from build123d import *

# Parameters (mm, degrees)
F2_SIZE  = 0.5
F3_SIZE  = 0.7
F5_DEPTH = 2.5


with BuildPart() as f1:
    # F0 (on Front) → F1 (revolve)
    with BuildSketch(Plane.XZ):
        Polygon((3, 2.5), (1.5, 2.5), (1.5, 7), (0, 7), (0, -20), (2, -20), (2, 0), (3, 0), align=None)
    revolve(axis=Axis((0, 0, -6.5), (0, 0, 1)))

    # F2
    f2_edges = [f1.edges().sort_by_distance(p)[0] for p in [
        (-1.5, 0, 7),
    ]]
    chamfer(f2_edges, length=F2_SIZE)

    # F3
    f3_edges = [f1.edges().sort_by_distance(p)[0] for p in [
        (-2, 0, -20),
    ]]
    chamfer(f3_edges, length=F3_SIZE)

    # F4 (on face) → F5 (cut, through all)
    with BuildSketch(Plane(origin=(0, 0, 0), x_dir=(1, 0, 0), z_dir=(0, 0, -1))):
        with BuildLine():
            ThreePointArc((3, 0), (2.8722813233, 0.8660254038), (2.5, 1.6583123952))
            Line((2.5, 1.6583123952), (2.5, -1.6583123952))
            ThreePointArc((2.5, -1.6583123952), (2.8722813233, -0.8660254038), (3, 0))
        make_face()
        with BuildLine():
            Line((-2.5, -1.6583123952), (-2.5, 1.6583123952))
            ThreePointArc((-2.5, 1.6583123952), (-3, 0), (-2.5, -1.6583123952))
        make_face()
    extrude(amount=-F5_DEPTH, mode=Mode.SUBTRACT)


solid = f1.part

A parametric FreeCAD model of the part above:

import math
import FreeCAD as App
import Part
import Sketcher

V = App.Vector


def edges_at(feature, points):
    """Names of the edges that pass closest to the given points."""
    edges = feature.Shape.Edges
    near = lambda p: min(range(len(edges)), key=lambda i: edges[i].distToShape(Part.Vertex(*p))[0])
    return sorted({f"Edge{near(p) + 1}" for p in points})


def add_polygon(sketch, points):
    """Adds a closed chain of lines whose ends are joined by coincident constraints."""
    first, n = sketch.GeometryCount, len(points)
    for a, b in zip(points, points[1:] + points[:1]):
        sketch.addGeometry(Part.LineSegment(App.Vector(*a, 0), App.Vector(*b, 0)), False)
    for i in range(n):
        sketch.addConstraint(Sketcher.Constraint("Coincident", first + i, 2, first + (i + 1) % n, 1))

doc = App.newDocument("Part")
body = doc.addObject("PartDesign::Body", "Body")

sketch1 = body.newObject("Sketcher::SketchObject", "Sketch")
sketch1.AttachmentSupport = (doc.getObject("XZ_Plane"), [""])
sketch1.MapMode = "FlatFace"
add_polygon(sketch1, [(3, 2.5), (1.5, 2.5), (1.5, 7), (0, 7), (0, -20), (2, -20), (2, 0), (3, 0)])
sketch1.addConstraint(Sketcher.Constraint("Horizontal", 0))
sketch1.addConstraint(Sketcher.Constraint("Vertical", 1))
sketch1.addConstraint(Sketcher.Constraint("Horizontal", 2))
sketch1.addConstraint(Sketcher.Constraint("Vertical", 3))
sketch1.addConstraint(Sketcher.Constraint("Horizontal", 4))
sketch1.addConstraint(Sketcher.Constraint("Vertical", 5))
sketch1.addConstraint(Sketcher.Constraint("Horizontal", 6))
sketch1.addConstraint(Sketcher.Constraint("Vertical", 7))
sketch1.addConstraint(Sketcher.Constraint("PointOnObject", 2, 2, -2))
sketch1.addConstraint(Sketcher.Constraint("PointOnObject", 5, 2, -1))
sketch1.addConstraint(Sketcher.Constraint("Equal", 0, 2))
sketch1.addConstraint(Sketcher.Constraint("DistanceX", 4, 1, 4, 2, 2.0))
sketch1.addConstraint(Sketcher.Constraint("DistanceX", 6, 1, 6, 2, 1.0))
sketch1.addConstraint(Sketcher.Constraint("DistanceY", 3, 2, 3, 1, 27.0))
sketch1.addConstraint(Sketcher.Constraint("DistanceY", 5, 1, 5, 2, 20.0))
sketch1.addConstraint(Sketcher.Constraint("DistanceY", 1, 1, 1, 2, 4.5))
revolution = body.newObject("PartDesign::Revolution", "Revolution")
revolution.Profile = sketch1
revolution.ReferenceAxis = (sketch1, ["V_Axis"])
revolution.Angle = 360
doc.recompute()

chamfer = body.newObject("PartDesign::Chamfer", "Chamfer")
chamfer.Base = (revolution, edges_at(revolution, [(-1.5, 0, 7)]))
chamfer.Size = 0.5
doc.recompute()

chamfer2 = body.newObject("PartDesign::Chamfer", "Chamfer001")
chamfer2.Base = (chamfer, edges_at(chamfer, [(-2, 0, -20)]))
chamfer2.Size = 0.7

sketch2 = body.newObject("Sketcher::SketchObject", "Sketch001")
sketch2.AttachmentSupport = (doc.getObject("XY_Plane"), [""])
sketch2.MapMode = "FlatFace"
sketch2.addGeometry(Part.ArcOfCircle(Part.Circle(V(0, 0, 0), V(0, 0, 1), 3), math.radians(-34), math.radians(0)), False)
sketch2.addGeometry(Part.LineSegment(V(2.5, -1.7, 0), V(2.5, 1.7, 0)), False)
sketch2.addGeometry(Part.ArcOfCircle(Part.Circle(V(0, 0, 0), V(0, 0, 1), 3), math.radians(0), math.radians(34)), False)
sketch2.addGeometry(Part.LineSegment(V(-2.5, 1.7, 0), V(-2.5, -1.7, 0)), False)
sketch2.addGeometry(Part.ArcOfCircle(Part.Circle(V(0, 0, 0), V(0, 0, 1), 3), math.radians(146), math.radians(214)), False)
sketch2.addConstraint(Sketcher.Constraint("Coincident", 0, 1, 1, 1))
sketch2.addConstraint(Sketcher.Constraint("Coincident", 1, 2, 2, 2))
sketch2.addConstraint(Sketcher.Constraint("Tangent", 2, 1, 0, 2))
sketch2.addConstraint(Sketcher.Constraint("Coincident", 3, 1, 4, 1))
sketch2.addConstraint(Sketcher.Constraint("Coincident", 4, 2, 3, 2))
sketch2.addConstraint(Sketcher.Constraint("Vertical", 1))
sketch2.addConstraint(Sketcher.Constraint("Vertical", 3))
sketch2.addConstraint(Sketcher.Constraint("Coincident", 0, 3, -1, 1))
sketch2.addConstraint(Sketcher.Constraint("Coincident", 4, 3, -1, 1))
sketch2.addConstraint(Sketcher.Constraint("Equal", 0, 2))
sketch2.addConstraint(Sketcher.Constraint("Equal", 2, 4))
sketch2.addConstraint(Sketcher.Constraint("PointOnObject", 2, 1, -1))
sketch2.addConstraint(Sketcher.Constraint("Horizontal", 1, 2, 3, 1))
sketch2.addConstraint(Sketcher.Constraint("Radius", 0, 3.0))
sketch2.addConstraint(Sketcher.Constraint("DistanceX", 3, 1, 1, 2, 5.0))
pocket1 = body.newObject("PartDesign::Pocket", "Pocket")
pocket1.Profile = sketch2
pocket1.Type = "ThroughAll"
pocket1.Reversed = True

doc.recompute()
